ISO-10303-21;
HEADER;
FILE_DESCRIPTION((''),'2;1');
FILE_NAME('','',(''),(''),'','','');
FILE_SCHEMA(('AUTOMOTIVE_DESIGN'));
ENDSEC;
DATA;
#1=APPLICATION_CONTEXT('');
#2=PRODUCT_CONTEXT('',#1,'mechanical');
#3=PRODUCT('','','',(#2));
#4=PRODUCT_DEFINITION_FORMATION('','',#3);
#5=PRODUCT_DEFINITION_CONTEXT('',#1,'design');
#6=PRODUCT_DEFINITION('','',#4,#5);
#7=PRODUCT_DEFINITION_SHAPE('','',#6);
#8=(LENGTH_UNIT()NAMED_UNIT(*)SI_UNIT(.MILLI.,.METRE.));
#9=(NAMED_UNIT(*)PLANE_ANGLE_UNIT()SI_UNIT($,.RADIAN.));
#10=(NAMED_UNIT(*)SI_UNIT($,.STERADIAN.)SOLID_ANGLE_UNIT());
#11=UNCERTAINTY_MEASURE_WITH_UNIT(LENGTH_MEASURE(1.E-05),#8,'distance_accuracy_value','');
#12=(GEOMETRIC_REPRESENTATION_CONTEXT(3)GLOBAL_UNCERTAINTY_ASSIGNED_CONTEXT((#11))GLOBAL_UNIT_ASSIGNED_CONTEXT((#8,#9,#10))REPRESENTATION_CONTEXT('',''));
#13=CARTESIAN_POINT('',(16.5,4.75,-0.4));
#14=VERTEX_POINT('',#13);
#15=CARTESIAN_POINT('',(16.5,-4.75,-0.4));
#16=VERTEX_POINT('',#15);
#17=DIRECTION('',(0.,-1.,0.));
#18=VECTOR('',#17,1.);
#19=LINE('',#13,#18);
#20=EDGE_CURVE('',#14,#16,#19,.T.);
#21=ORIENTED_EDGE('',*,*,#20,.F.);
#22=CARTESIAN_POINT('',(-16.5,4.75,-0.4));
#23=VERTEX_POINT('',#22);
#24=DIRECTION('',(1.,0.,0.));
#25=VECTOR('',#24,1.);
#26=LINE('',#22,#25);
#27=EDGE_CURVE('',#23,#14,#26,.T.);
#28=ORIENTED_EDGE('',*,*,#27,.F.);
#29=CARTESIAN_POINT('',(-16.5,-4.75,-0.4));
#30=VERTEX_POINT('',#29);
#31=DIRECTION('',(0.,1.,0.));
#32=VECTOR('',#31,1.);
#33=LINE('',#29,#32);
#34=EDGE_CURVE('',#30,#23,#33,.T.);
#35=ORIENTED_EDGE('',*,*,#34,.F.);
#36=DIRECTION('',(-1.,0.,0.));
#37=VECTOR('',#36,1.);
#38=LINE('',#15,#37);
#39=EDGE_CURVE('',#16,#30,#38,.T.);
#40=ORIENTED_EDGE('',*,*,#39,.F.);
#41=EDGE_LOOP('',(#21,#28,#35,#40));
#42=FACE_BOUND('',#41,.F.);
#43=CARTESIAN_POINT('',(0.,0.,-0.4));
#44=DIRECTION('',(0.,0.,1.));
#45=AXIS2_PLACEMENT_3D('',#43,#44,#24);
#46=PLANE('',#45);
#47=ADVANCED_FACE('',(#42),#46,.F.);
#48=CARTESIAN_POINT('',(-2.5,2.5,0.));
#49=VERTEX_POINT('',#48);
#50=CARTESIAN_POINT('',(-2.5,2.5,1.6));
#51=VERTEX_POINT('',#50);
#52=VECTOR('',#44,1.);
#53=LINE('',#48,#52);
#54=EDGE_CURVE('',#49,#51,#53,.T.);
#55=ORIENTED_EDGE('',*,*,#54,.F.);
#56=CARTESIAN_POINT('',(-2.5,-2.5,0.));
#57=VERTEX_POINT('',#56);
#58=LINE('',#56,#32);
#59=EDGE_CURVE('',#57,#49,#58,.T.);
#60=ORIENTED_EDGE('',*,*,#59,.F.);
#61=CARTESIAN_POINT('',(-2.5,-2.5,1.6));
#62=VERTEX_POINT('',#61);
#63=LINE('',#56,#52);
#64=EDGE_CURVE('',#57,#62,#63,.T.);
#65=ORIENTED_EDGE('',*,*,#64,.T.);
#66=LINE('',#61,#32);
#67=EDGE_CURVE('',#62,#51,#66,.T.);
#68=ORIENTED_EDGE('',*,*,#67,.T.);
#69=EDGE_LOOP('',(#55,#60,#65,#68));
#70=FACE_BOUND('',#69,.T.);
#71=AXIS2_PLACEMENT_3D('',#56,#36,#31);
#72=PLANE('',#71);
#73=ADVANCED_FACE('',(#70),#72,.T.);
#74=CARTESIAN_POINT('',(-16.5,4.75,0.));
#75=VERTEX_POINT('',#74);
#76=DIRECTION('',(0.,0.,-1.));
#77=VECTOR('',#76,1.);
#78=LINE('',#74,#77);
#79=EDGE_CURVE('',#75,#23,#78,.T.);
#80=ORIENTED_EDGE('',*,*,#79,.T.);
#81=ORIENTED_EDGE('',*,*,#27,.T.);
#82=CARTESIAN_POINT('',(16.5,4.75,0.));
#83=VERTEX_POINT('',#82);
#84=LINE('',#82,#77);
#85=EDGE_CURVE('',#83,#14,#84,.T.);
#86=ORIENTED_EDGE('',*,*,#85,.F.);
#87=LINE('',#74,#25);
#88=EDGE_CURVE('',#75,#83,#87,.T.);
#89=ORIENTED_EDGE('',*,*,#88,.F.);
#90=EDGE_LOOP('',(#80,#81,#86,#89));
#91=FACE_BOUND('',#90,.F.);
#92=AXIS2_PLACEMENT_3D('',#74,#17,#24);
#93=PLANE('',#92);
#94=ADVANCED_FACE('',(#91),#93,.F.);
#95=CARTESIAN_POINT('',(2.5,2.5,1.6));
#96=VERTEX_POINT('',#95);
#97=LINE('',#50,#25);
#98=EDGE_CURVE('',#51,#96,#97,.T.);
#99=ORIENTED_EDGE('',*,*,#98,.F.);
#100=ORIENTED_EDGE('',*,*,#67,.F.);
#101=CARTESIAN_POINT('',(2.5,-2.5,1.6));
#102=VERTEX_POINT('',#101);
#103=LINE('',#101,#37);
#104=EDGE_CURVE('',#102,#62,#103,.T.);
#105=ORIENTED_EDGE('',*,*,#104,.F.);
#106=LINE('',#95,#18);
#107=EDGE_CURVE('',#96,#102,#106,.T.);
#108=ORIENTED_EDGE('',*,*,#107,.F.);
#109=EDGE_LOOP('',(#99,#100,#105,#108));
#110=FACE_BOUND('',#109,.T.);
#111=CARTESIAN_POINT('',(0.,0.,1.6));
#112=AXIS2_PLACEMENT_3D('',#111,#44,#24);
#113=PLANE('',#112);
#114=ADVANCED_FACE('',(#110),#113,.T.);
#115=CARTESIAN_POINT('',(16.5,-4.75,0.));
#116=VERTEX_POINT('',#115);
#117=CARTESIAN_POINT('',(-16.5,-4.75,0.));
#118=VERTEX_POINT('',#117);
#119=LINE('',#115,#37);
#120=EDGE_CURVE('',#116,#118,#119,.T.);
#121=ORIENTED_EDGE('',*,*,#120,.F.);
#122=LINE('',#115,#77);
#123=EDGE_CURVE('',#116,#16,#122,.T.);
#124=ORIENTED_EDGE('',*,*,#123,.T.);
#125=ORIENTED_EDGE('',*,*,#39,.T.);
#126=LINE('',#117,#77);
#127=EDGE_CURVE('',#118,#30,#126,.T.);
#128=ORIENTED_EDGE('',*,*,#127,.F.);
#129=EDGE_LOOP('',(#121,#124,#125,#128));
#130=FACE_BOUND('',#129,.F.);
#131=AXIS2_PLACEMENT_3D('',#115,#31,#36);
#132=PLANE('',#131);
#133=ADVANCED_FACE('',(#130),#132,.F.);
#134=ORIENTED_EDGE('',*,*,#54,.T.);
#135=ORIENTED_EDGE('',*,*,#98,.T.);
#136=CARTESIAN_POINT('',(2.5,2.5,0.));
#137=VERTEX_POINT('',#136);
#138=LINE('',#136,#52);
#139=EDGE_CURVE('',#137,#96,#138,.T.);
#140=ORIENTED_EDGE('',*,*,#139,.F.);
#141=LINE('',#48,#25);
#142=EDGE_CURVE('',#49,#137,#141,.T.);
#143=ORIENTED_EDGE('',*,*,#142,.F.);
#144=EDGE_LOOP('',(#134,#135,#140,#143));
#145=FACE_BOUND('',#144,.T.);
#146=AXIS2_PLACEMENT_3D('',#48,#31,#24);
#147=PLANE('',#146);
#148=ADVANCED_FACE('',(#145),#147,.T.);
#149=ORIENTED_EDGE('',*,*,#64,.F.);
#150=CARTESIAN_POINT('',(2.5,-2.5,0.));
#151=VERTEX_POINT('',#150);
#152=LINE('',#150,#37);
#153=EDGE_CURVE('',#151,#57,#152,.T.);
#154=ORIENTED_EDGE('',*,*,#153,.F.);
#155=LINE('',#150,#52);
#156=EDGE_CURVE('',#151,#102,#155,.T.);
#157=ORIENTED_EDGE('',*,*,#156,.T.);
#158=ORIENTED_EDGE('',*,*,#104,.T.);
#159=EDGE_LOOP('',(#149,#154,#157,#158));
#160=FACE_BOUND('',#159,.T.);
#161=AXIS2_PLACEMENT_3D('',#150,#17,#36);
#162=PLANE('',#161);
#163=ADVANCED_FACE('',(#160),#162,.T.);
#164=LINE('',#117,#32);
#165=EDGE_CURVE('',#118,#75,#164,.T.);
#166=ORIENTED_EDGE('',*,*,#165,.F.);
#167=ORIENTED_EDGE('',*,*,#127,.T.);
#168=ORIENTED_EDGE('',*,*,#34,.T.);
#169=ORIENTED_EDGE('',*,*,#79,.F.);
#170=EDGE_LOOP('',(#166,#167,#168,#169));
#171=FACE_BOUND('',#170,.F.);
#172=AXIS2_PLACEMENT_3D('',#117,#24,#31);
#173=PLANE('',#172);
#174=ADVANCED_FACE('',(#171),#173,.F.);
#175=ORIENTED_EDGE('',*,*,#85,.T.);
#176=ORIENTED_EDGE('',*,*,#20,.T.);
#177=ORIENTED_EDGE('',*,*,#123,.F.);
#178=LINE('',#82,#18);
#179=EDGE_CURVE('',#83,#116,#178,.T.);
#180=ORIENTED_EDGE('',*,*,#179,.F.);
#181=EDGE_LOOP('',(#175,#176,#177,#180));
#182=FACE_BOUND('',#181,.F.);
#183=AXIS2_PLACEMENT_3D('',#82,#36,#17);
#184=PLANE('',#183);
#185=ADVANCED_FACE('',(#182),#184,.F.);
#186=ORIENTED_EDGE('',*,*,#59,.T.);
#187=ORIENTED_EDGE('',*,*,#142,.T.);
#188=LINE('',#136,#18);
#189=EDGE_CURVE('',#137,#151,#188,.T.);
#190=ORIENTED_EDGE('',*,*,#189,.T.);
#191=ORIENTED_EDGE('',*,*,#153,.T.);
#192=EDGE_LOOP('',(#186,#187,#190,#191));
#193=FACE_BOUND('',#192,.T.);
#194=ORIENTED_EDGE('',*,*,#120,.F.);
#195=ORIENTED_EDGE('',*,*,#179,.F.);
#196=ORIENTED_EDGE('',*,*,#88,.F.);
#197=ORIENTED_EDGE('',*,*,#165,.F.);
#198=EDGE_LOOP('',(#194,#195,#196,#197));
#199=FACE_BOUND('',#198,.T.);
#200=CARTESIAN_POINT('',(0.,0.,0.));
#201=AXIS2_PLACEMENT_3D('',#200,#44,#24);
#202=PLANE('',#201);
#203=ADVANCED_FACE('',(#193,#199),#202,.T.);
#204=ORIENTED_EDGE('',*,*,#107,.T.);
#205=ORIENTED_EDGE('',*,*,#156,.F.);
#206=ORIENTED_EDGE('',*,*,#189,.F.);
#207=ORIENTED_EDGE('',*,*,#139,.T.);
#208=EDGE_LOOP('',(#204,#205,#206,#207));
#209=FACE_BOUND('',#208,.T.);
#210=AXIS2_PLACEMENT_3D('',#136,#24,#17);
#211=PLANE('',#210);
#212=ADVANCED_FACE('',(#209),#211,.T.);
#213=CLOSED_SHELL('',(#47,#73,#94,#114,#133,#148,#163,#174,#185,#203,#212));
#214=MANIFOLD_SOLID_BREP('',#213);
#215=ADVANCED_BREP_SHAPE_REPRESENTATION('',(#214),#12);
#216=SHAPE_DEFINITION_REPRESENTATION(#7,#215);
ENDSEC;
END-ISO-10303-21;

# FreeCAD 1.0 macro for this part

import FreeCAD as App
import Part
import Sketcher
from FreeCAD import Vector
Q = App.Units.Quantity


def add_polygon(sketch, points):
    """Adds a closed chain of lines whose ends are joined by coincident constraints."""
    first, n = sketch.GeometryCount, len(points)
    for a, b in zip(points, points[1:] + points[:1]):
        sketch.addGeometry(Part.LineSegment(App.Vector(*a, 0), App.Vector(*b, 0)), False)
    for i in range(n):
        sketch.addConstraint(Sketcher.Constraint("Coincident", first + i, 2, first + (i + 1) % n, 1))

doc = App.newDocument("Part")
params = doc.addObject("Spreadsheet::Sheet", "Params")
for row, (alias, value) in enumerate([
    ("sketch1_width", "33 mm"),
    ("sketch1_height", "9.5 mm"),
    ("pad1_length", "0.4 mm"),
    ("sketch2_width", "5 mm"),
    ("pad2_length", "1.6 mm"),
], start=1):
    params.set(f"A{row}", alias)
    params.set(f"B{row}", "=" + value)
    params.setAlias(f"B{row}", alias)

body = doc.addObject("PartDesign::Body", "Body")

# Sketch on XY plane
sketch1 = body.newObject("Sketcher::SketchObject", "Sketch")
sketch1.AttachmentSupport = (doc.getObject("XY_Plane"), [""])
sketch1.MapMode = "FlatFace"
add_polygon(sketch1, [(-16, -5), (16, -5), (16, 5), (-16, 5)])  # lines 0-3
sketch1.addConstraint(Sketcher.Constraint("Horizontal", 0))
sketch1.addConstraint(Sketcher.Constraint("Vertical", 1))
sketch1.addConstraint(Sketcher.Constraint("Horizontal", 2))
sketch1.addConstraint(Sketcher.Constraint("Vertical", 3))
sketch1.addConstraint(Sketcher.Constraint("Symmetric", 0, 2, 2, 2, -1, 1))
sketch1.addConstraint(Sketcher.Constraint("DistanceX", 0, 1, 0, 2, Q("33 mm")))
sketch1.addConstraint(Sketcher.Constraint("DistanceY", 1, 1, 1, 2, Q("9.5 mm")))
sketch1.setExpression("Constraints[9]", "Params.sketch1_width")
sketch1.setExpression("Constraints[10]", "Params.sketch1_height")
pad1 = body.newObject("PartDesign::Pad", "Pad")
pad1.Profile = sketch1
pad1.setExpression("Length", "Params.pad1_length")
pad1.Reversed = True

# Sketch on XY plane
sketch2 = body.newObject("Sketcher::SketchObject", "Sketch001")
sketch2.AttachmentSupport = (doc.getObject("XY_Plane"), [""])
sketch2.MapMode = "FlatFace"
add_polygon(sketch2, [(-2, -2), (2, -2), (2, 2), (-2, 2)])  # lines 0-3
sketch2.addConstraint(Sketcher.Constraint("Horizontal", 0))
sketch2.addConstraint(Sketcher.Constraint("Vertical", 1))
sketch2.addConstraint(Sketcher.Constraint("Horizontal", 2))
sketch2.addConstraint(Sketcher.Constraint("Vertical", 3))
sketch2.addConstraint(Sketcher.Constraint("Symmetric", 0, 2, 2, 2, -1, 1))
sketch2.addConstraint(Sketcher.Constraint("Equal", 2, 1))
sketch2.addConstraint(Sketcher.Constraint("DistanceX", 0, 1, 0, 2, Q("5 mm")))
sketch2.setExpression("Constraints[10]", "Params.sketch2_width")
pad2 = body.newObject("PartDesign::Pad", "Pad001")
pad2.Profile = sketch2
pad2.setExpression("Length", "Params.pad2_length")

doc.recompute()
